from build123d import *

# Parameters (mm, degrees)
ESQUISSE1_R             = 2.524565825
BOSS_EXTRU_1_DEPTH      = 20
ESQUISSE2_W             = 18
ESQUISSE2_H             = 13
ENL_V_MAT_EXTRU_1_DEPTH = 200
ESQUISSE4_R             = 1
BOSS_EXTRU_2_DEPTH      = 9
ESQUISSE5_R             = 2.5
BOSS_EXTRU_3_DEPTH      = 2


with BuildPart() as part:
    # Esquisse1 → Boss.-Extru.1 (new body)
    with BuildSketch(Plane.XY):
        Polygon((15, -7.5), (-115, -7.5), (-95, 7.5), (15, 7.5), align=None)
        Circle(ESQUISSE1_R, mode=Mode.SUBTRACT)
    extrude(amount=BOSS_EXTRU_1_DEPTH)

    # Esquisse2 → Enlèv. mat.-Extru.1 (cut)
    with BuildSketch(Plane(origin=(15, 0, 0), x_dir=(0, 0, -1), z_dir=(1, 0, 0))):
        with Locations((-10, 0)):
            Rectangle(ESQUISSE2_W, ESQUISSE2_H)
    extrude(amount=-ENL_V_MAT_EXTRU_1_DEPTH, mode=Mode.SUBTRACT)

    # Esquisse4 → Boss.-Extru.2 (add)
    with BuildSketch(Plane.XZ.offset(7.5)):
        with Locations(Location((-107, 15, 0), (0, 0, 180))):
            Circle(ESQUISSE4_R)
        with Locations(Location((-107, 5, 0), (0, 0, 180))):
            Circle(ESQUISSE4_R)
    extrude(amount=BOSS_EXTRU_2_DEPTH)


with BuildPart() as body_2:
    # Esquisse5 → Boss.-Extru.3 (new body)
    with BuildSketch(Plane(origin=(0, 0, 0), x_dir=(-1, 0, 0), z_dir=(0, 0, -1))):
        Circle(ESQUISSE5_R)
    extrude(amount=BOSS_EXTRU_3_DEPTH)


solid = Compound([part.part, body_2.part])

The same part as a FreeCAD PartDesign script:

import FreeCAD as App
import Part
import Sketcher

V = App.Vector
Q = App.Units.Quantity

doc = App.newDocument("Part")
body = doc.addObject("PartDesign::Body", "Body")

# Sketch on XY plane
sketch1 = body.newObject("Sketcher::SketchObject", "Sketch")
sketch1.AttachmentSupport = (doc.getObject("XY_Plane"), [""])
sketch1.MapMode = "FlatFace"
sketch1.addGeometry(Part.LineSegment(V(-115, -7.5, 0), V(15, -7.5, 0)), False)
sketch1.addGeometry(Part.LineSegment(V(15, -7.5, 0), V(15, 7.5, 0)), False)
sketch1.addGeometry(Part.LineSegment(V(15, 7.5, 0), V(-95, 7.5, 0)), False)
sketch1.addGeometry(Part.LineSegment(V(-95, 7.5, 0), V(-115, -7.5, 0)), False)
sketch1.addGeometry(Part.Circle(V(0, 0, 0), V(0, 0, 1), 2.524566), False)
sketch1.addConstraint(Sketcher.Constraint("Coincident", 0, 2, 1, 1))
sketch1.addConstraint(Sketcher.Constraint("Coincident", 1, 2, 2, 1))
sketch1.addConstraint(Sketcher.Constraint("Coincident", 2, 2, 3, 1))
sketch1.addConstraint(Sketcher.Constraint("Coincident", 3, 2, 0, 1))
sketch1.addConstraint(Sketcher.Constraint("Horizontal", 0))
sketch1.addConstraint(Sketcher.Constraint("Vertical", 1))
sketch1.addConstraint(Sketcher.Constraint("Horizontal", 2))
sketch1.addConstraint(Sketcher.Constraint("Coincident", 4, 3, -1, 1))
sketch1.addConstraint(Sketcher.Constraint("DistanceX", 0, 1, 0, 2, Q("130 mm")))
sketch1.addConstraint(Sketcher.Constraint("DistanceX", 2, 2, 2, 1, Q("110 mm")))
sketch1.addConstraint(Sketcher.Constraint("DistanceY", 1, 1, 1, 2, Q("15 mm")))
sketch1.addConstraint(Sketcher.Constraint("DistanceX", -1, 1, 0, 2, Q("15 mm")))
sketch1.addConstraint(Sketcher.Constraint("DistanceY", 0, 2, -1, 1, Q("7.5 mm")))
sketch1.addConstraint(Sketcher.Constraint("Diameter", 4, Q("5.049132 mm")))
pad1 = body.newObject("PartDesign::Pad", "Pad")
pad1.Profile = sketch1
pad1.Length = 20

# Sketch on YZ plane
sketch2 = body.newObject("Sketcher::SketchObject", "Sketch001")
sketch2.AttachmentSupport = (doc.getObject("YZ_Plane"), [""])
sketch2.MapMode = "FlatFace"
sketch2.AttachmentOffset = App.Placement(V(0, 0, 15), App.Rotation())
sketch2.addGeometry(Part.LineSegment(V(6.5, 19, 0), V(-6.5, 19, 0)), False)
sketch2.addGeometry(Part.LineSegment(V(-6.5, 19, 0), V(-6.5, 1, 0)), False)
sketch2.addGeometry(Part.LineSegment(V(-6.5, 1, 0), V(6.5, 1, 0)), False)
sketch2.addGeometry(Part.LineSegment(V(6.5, 1, 0), V(6.5, 19, 0)), False)
sketch2.addConstraint(Sketcher.Constraint("Coincident", 0, 2, 1, 1))
sketch2.addConstraint(Sketcher.Constraint("Coincident", 1, 2, 2, 1))
sketch2.addConstraint(Sketcher.Constraint("Coincident", 2, 2, 3, 1))
sketch2.addConstraint(Sketcher.Constraint("Coincident", 3, 2, 0, 1))
sketch2.addConstraint(Sketcher.Constraint("Horizontal", 0))
sketch2.addConstraint(Sketcher.Constraint("Vertical", 1))
sketch2.addConstraint(Sketcher.Constraint("Horizontal", 2))
sketch2.addConstraint(Sketcher.Constraint("Vertical", 3))
sketch2.addConstraint(Sketcher.Constraint("DistanceX", 0, 2, 0, 1, Q("13 mm")))
sketch2.addConstraint(Sketcher.Constraint("DistanceY", 1, 2, 1, 1, Q("18 mm")))
sketch2.addConstraint(Sketcher.Constraint("DistanceY", -1, 1, 0, 2, Q("19 mm")))
sketch2.addConstraint(Sketcher.Constraint("DistanceX", 0, 2, -1, 1, Q("6.5 mm")))
pocket1 = body.newObject("PartDesign::Pocket", "Pocket")
pocket1.Profile = sketch2
pocket1.Length = 200

# Sketch on XZ plane
sketch3 = body.newObject("Sketcher::SketchObject", "Sketch002")
sketch3.AttachmentSupport = (doc.getObject("XZ_Plane"), [""])
sketch3.MapMode = "FlatFace"
sketch3.AttachmentOffset = App.Placement(V(0, 0, 7.5), App.Rotation())
sketch3.addGeometry(Part.Circle(V(-107, 15, 0), V(0, 0, 1), 1), False)
sketch3.addGeometry(Part.Circle(V(-107, 5, 0), V(0, 0, 1), 1), False)
sketch3.addConstraint(Sketcher.Constraint("Equal", 0, 1))
sketch3.addConstraint(Sketcher.Constraint("Vertical", 0, 3, 1, 3))
sketch3.addConstraint(Sketcher.Constraint("Diameter", 0, Q("2 mm")))
sketch3.addConstraint(Sketcher.Constraint("DistanceX", 0, 3, -1, 1, Q("107 mm")))
sketch3.addConstraint(Sketcher.Constraint("DistanceY", -1, 1, 0, 3, Q("15 mm")))
sketch3.addConstraint(Sketcher.Constraint("DistanceY", -1, 1, 1, 3, Q("5 mm")))
pad2 = body.newObject("PartDesign::Pad", "Pad001")
pad2.Profile = sketch3
pad2.Length = 9
body2 = doc.addObject("PartDesign::Body", "Body001")

# Sketch on XY plane
sketch4 = body2.newObject("Sketcher::SketchObject", "Sketch003")
sketch4.AttachmentSupport = (doc.getObject("XY_Plane001"), [""])
sketch4.MapMode = "FlatFace"
sketch4.addGeometry(Part.Circle(V(0, 0, 0), V(0, 0, 1), 2.5), False)
sketch4.addConstraint(Sketcher.Constraint("Coincident", 0, 3, -1, 1))
sketch4.addConstraint(Sketcher.Constraint("Diameter", 0, Q("5 mm")))
pad3 = body2.newObject("PartDesign::Pad", "Pad002")
pad3.Profile = sketch4
pad3.Length = 2
pad3.Reversed = True

doc.recompute()
